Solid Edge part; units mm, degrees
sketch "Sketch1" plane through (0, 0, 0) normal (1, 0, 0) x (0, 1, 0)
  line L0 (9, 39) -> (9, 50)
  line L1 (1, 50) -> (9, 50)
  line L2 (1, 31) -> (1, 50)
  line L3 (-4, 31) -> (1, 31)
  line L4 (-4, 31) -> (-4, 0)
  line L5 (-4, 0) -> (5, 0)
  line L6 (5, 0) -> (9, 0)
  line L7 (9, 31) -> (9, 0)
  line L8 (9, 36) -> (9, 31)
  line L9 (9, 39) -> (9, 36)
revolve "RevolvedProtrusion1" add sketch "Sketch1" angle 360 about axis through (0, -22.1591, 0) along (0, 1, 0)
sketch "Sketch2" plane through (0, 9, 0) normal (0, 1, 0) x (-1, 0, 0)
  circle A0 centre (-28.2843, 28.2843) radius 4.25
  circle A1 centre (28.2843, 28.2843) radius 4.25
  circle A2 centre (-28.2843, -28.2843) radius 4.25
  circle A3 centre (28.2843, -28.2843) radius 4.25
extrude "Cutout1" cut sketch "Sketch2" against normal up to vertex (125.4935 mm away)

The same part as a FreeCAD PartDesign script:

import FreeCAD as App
import Part
import Sketcher


def add_polygon(sketch, points):
    """Adds a closed chain of lines whose ends are joined by coincident constraints."""
    first, n = sketch.GeometryCount, len(points)
    for a, b in zip(points, points[1:] + points[:1]):
        sketch.addGeometry(Part.LineSegment(App.Vector(*a, 0), App.Vector(*b, 0)), False)
    for i in range(n):
        sketch.addConstraint(Sketcher.Constraint("Coincident", first + i, 2, first + (i + 1) % n, 1))

doc = App.newDocument("Part")
body = doc.addObject("PartDesign::Body", "Body")

# Sketch on YZ plane
sketch1 = body.newObject("Sketcher::SketchObject", "Sketch")
sketch1.AttachmentSupport = (doc.getObject("YZ_Plane"), [""])
sketch1.MapMode = "FlatFace"
add_polygon(sketch1, [(9, 0), (9, 50), (1, 50), (1, 31), (-4, 31), (-4, 0)])  # lines 0-5
sketch1.addConstraint([
    Sketcher.Constraint("Vertical", 0),
    Sketcher.Constraint("Horizontal", 1),
    Sketcher.Constraint("Vertical", 2),
    Sketcher.Constraint("Horizontal", 3),
    Sketcher.Constraint("Vertical", 4),
    Sketcher.Constraint("Horizontal", 5),
    Sketcher.Constraint("PointOnObject", 4, 2, -1),
    Sketcher.Constraint("DistanceX", 1, 2, 1, 1, 8.0),
    Sketcher.Constraint("DistanceX", 3, 2, 3, 1, 5.0),
    Sketcher.Constraint("DistanceY", 0, 1, 0, 2, 50.0),
    Sketcher.Constraint("DistanceY", 2, 2, 2, 1, 19.0),
    Sketcher.Constraint("DistanceX", -1, 1, 0, 2, 9.0),
])
revolution = body.newObject("PartDesign::Revolution", "Revolution")
revolution.Profile = sketch1
revolution.ReferenceAxis = (sketch1, ["H_Axis"])
revolution.Angle = 360

# Sketch on XZ plane
sketch2 = body.newObject("Sketcher::SketchObject", "Sketch001")
sketch2.AttachmentSupport = (doc.getObject("XZ_Plane"), [""])
sketch2.MapMode = "FlatFace"
sketch2.AttachmentOffset = App.Placement(App.Vector(0, 0, -9), App.Rotation())
sketch2.addGeometry([
    Part.Circle(App.Vector(28.2843, 28.2843, 0), App.Vector(0, 0, 1), 4.25),
    Part.Circle(App.Vector(-28.2843, 28.2843, 0), App.Vector(0, 0, 1), 4.25),
    Part.Circle(App.Vector(28.2843, -28.2843, 0), App.Vector(0, 0, 1), 4.25),
    Part.Circle(App.Vector(-28.2843, -28.2843, 0), App.Vector(0, 0, 1), 4.25),
], False)
sketch2.addConstraint([
    Sketcher.Constraint("Equal", 0, 1),
    Sketcher.Constraint("Equal", 1, 2),
    Sketcher.Constraint("Equal", 2, 3),
    Sketcher.Constraint("Symmetric", 1, 3, 2, 3, -1, 1),
    Sketcher.Constraint("Symmetric", 0, 3, 3, 3, -1, 1),
    Sketcher.Constraint("Symmetric", 0, 3, 1, 3, -2),
    Sketcher.Constraint("Diameter", 0, 8.5),
    Sketcher.Constraint("DistanceX", -1, 1, 0, 3, 28.2843),
    Sketcher.Constraint("DistanceY", -1, 1, 0, 3, 28.2843),
])
pocket1 = body.newObject("PartDesign::Pocket", "Pocket")
pocket1.Profile = sketch2
pocket1.Length = 125.4935
pocket1.Reversed = True

doc.recompute()
